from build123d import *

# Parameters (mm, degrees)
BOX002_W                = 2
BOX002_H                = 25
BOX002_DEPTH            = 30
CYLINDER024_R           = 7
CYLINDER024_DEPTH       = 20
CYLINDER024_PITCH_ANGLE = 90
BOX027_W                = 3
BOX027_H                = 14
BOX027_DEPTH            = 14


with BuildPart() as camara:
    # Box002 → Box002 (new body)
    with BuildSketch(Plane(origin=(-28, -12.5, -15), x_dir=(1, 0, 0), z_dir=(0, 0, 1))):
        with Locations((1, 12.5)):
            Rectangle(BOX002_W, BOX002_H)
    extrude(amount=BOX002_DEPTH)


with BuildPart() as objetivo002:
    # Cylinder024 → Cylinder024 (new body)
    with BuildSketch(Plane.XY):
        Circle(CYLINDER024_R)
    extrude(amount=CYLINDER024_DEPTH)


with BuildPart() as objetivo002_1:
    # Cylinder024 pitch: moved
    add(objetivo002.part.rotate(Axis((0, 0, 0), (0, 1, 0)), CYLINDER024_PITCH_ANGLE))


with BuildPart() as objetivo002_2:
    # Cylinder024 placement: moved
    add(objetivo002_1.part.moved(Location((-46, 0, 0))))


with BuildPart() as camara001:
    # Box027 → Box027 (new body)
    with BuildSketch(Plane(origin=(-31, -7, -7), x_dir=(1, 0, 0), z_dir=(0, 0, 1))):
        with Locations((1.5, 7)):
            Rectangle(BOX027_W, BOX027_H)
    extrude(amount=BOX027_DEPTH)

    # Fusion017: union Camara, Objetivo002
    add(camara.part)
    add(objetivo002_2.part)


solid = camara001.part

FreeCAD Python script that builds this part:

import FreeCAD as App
import Part
import Sketcher
from FreeCAD import Vector

doc = App.newDocument("Part")
params = doc.addObject("Spreadsheet::Sheet", "Params")
for row, (alias, value) in enumerate([
    ("sketch1_width", "2 mm"),
    ("sketch1_height", "25 mm"),
    ("pad1_length", "30 mm"),
    ("sketch2_diameter", "14 mm"),
    ("pad2_length", "20 mm"),
    ("sketch3_width", "3 mm"),
    ("sketch3_height", "14 mm"),
    ("pad3_length", "14 mm"),
], start=1):
    params.set(f"A{row}", alias)
    params.set(f"B{row}", "=" + value)
    params.setAlias(f"B{row}", alias)

body = doc.addObject("PartDesign::Body", "Body")

sketch1 = doc.addObject("Sketcher::SketchObject", "Sketch")
body.addObject(sketch1)
sketch1.AttachmentSupport = (doc.XY_Plane, [""])
sketch1.MapMode = "FlatFace"
sketch1.AttachmentOffset = App.Placement(Vector(0, 0, -15), App.Rotation())
sketch1.addGeometry([
    Part.LineSegment(Vector(-28, 12.5, 0), Vector(-28, -12.5, 0)),
    Part.LineSegment(Vector(-28, -12.5, 0), Vector(-26, -12.5, 0)),
    Part.LineSegment(Vector(-26, -12.5, 0), Vector(-26, 12.5, 0)),
    Part.LineSegment(Vector(-26, 12.5, 0), Vector(-28, 12.5, 0)),
], False)
sketch1.addConstraint([
    Sketcher.Constraint("Coincident", 0, 2, 1, 1),
    Sketcher.Constraint("Coincident", 1, 2, 2, 1),
    Sketcher.Constraint("Coincident", 2, 2, 3, 1),
    Sketcher.Constraint("Coincident", 3, 2, 0, 1),
    Sketcher.Constraint("Vertical", 0),
    Sketcher.Constraint("Horizontal", 1),
    Sketcher.Constraint("Vertical", 2),
    Sketcher.Constraint("Horizontal", 3),
    Sketcher.Constraint("DistanceX", 1, 1, 1, 2, 2.0),
    Sketcher.Constraint("DistanceY", 0, 2, 0, 1, 25.0),
    Sketcher.Constraint("DistanceX", 0, 2, -1, 1, 28.0),
    Sketcher.Constraint("DistanceY", 0, 2, -1, 1, 12.5),
])
sketch1.setExpression("Constraints[8]", "Params.sketch1_width")
sketch1.setExpression("Constraints[9]", "Params.sketch1_height")
pad1 = doc.addObject("PartDesign::Pad", "Pad")
body.addObject(pad1)
pad1.Profile = sketch1
pad1.setExpression("Length", "Params.pad1_length")
body2 = doc.addObject("PartDesign::Body", "Body001")

sketch2 = doc.addObject("Sketcher::SketchObject", "Sketch001")
body2.addObject(sketch2)
sketch2.AttachmentSupport = (doc.getObject("XY_Plane001"), [""])
sketch2.MapMode = "FlatFace"
sketch2.addGeometry(Part.Circle(Vector(0, 0, 0), Vector(0, 0, 1), 7), False)
sketch2.addConstraint([
    Sketcher.Constraint("Coincident", 0, 3, -1, 1),
    Sketcher.Constraint("Diameter", 0, 14.0),
])
sketch2.setExpression("Constraints[1]", "Params.sketch2_diameter")
pad2 = doc.addObject("PartDesign::Pad", "Pad001")
body2.addObject(pad2)
pad2.Profile = sketch2
pad2.setExpression("Length", "Params.pad2_length")
body3 = doc.addObject("PartDesign::Body", "Body002")
doc.recompute()

body2.Placement = App.Placement(Vector(0, 0, 0), App.Rotation(Vector(0, 1, 0), 90))
boolean = doc.addObject("PartDesign::Boolean", "Boolean")
body3.addObject(boolean)
boolean.Type = "Fuse"
boolean.addObjects([body2])
body4 = doc.addObject("PartDesign::Body", "Body003")
doc.recompute()

body3.Placement = App.Placement(Vector(-46, 0, 0), App.Rotation(Vector(0, 0, 1), 0))
boolean2 = doc.addObject("PartDesign::Boolean", "Boolean001")
body4.addObject(boolean2)
boolean2.Type = "Fuse"
boolean2.addObjects([body3])
body5 = doc.addObject("PartDesign::Body", "Body004")

sketch3 = doc.addObject("Sketcher::SketchObject", "Sketch002")
body5.addObject(sketch3)
sketch3.AttachmentSupport = (doc.getObject("XY_Plane004"), [""])
sketch3.MapMode = "FlatFace"
sketch3.AttachmentOffset = App.Placement(Vector(0, 0, -7), App.Rotation())
sketch3.addGeometry([
    Part.LineSegment(Vector(-31, 7, 0), Vector(-31, -7, 0)),
    Part.LineSegment(Vector(-31, -7, 0), Vector(-28, -7, 0)),
    Part.LineSegment(Vector(-28, -7, 0), Vector(-28, 7, 0)),
    Part.LineSegment(Vector(-28, 7, 0), Vector(-31, 7, 0)),
], False)
sketch3.addConstraint([
    Sketcher.Constraint("Coincident", 0, 2, 1, 1),
    Sketcher.Constraint("Coincident", 1, 2, 2, 1),
    Sketcher.Constraint("Coincident", 2, 2, 3, 1),
    Sketcher.Constraint("Coincident", 3, 2, 0, 1),
    Sketcher.Constraint("Vertical", 0),
    Sketcher.Constraint("Horizontal", 1),
    Sketcher.Constraint("Vertical", 2),
    Sketcher.Constraint("Horizontal", 3),
    Sketcher.Constraint("DistanceX", 1, 1, 1, 2, 3.0),
    Sketcher.Constraint("DistanceY", 0, 2, 0, 1, 14.0),
    Sketcher.Constraint("DistanceX", 0, 2, -1, 1, 31.0),
    Sketcher.Constraint("DistanceY", 0, 2, -1, 1, 7.0),
])
sketch3.setExpression("Constraints[8]", "Params.sketch3_width")
sketch3.setExpression("Constraints[9]", "Params.sketch3_height")
pad3 = doc.addObject("PartDesign::Pad", "Pad002")
body5.addObject(pad3)
pad3.Profile = sketch3
pad3.setExpression("Length", "Params.pad3_length")
doc.recompute()

boolean3 = doc.addObject("PartDesign::Boolean", "Boolean002")
body5.addObject(boolean3)
boolean3.Type = "Fuse"
boolean3.addObjects([body])
doc.recompute()

boolean4 = doc.addObject("PartDesign::Boolean", "Boolean003")
body5.addObject(boolean4)
boolean4.Type = "Fuse"
boolean4.addObjects([body4])

doc.recompute()
